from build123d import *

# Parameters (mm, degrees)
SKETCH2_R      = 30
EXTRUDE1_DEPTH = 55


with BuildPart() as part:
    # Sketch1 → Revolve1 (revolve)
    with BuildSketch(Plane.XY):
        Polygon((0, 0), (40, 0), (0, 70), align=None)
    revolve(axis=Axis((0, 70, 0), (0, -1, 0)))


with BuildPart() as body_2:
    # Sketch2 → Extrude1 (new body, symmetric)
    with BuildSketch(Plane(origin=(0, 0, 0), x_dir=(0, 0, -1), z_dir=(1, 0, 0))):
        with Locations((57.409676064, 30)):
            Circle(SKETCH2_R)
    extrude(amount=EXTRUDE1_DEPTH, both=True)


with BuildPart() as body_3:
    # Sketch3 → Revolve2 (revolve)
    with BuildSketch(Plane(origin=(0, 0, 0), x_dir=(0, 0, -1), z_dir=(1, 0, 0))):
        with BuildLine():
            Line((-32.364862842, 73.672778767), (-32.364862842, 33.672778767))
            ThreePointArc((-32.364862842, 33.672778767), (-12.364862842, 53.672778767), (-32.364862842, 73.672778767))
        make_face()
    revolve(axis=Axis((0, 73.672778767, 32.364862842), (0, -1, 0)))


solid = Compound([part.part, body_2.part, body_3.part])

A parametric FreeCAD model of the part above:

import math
import FreeCAD as App
import Part
import Sketcher
from FreeCAD import Vector

doc = App.newDocument("Part")
params = doc.addObject("Spreadsheet::Sheet", "Params")
for row, (alias, value) in enumerate([
    ("sketch1_width", "40 mm"),
    ("sketch1_height", "70 mm"),
    ("revolution_angle", "360 deg"),
    ("sketch2_diameter", "60 mm"),
    ("pad1_length", "110 mm"),
    ("sketch3_radius", "20 mm"),
    ("revolution2_angle", "360 deg"),
], start=1):
    params.set(f"A{row}", alias)
    params.set(f"B{row}", "=" + value)
    params.setAlias(f"B{row}", alias)

body = doc.addObject("PartDesign::Body", "Body")

sketch1 = body.newObject("Sketcher::SketchObject", "Sketch")
sketch1.AttachmentSupport = (doc.getObject("XY_Plane"), [""])
sketch1.MapMode = "FlatFace"
sketch1.addGeometry(Part.LineSegment(Vector(0, 0, 0), Vector(40, 0, 0)), False)
sketch1.addGeometry(Part.LineSegment(Vector(40, 0, 0), Vector(0, 70, 0)), False)
sketch1.addGeometry(Part.LineSegment(Vector(0, 70, 0), Vector(0, 0, 0)), False)
sketch1.addConstraint(Sketcher.Constraint("Coincident", 0, 2, 1, 1))
sketch1.addConstraint(Sketcher.Constraint("Coincident", 1, 2, 2, 1))
sketch1.addConstraint(Sketcher.Constraint("Coincident", 2, 2, 0, 1))
sketch1.addConstraint(Sketcher.Constraint("Horizontal", 0))
sketch1.addConstraint(Sketcher.Constraint("Vertical", 2))
sketch1.addConstraint(Sketcher.Constraint("Coincident", 2, 2, -1, 1))
sketch1.addConstraint(Sketcher.Constraint("DistanceX", 0, 1, 0, 2, 40.0))
sketch1.addConstraint(Sketcher.Constraint("DistanceY", 2, 2, 2, 1, 70.0))
sketch1.setExpression("Constraints[6]", "Params.sketch1_width")
sketch1.setExpression("Constraints[7]", "Params.sketch1_height")
revolution = body.newObject("PartDesign::Revolution", "Revolution")
revolution.Profile = sketch1
revolution.ReferenceAxis = (sketch1, ["V_Axis"])
revolution.setExpression("Angle", "Params.revolution_angle")
body2 = doc.addObject("PartDesign::Body", "Body001")

sketch2 = body2.newObject("Sketcher::SketchObject", "Sketch001")
sketch2.AttachmentSupport = (doc.getObject("YZ_Plane001"), [""])
sketch2.MapMode = "FlatFace"
sketch2.addGeometry(Part.Circle(Vector(30, -57, 0), Vector(0, 0, 1), 30), False)
sketch2.addConstraint(Sketcher.Constraint("Diameter", 0, 60.0))
sketch2.addConstraint(Sketcher.Constraint("DistanceX", -1, 1, 0, 3, 30.0))
sketch2.addConstraint(Sketcher.Constraint("DistanceY", 0, 3, -1, 1, 57.409676))
sketch2.setExpression("Constraints[0]", "Params.sketch2_diameter")
pad1 = body2.newObject("PartDesign::Pad", "Pad")
pad1.Profile = sketch2
pad1.setExpression("Length", "Params.pad1_length")
pad1.Midplane = True
body3 = doc.addObject("PartDesign::Body", "Body002")

sketch3 = body3.newObject("Sketcher::SketchObject", "Sketch002")
sketch3.AttachmentSupport = (doc.getObject("YZ_Plane002"), [""])
sketch3.MapMode = "FlatFace"
sketch3.addGeometry(Part.LineSegment(Vector(74, 32, 0), Vector(34, 32, 0)), False)
sketch3.addGeometry(Part.ArcOfCircle(Part.Circle(Vector(54, 32, 0), Vector(0, 0, 1), 20), math.radians(180), math.radians(360)), False)
sketch3.addGeometry(Part.LineSegment(Vector(74, 32, 0), Vector(34, 32, 0)), True)
sketch3.addConstraint(Sketcher.Constraint("Coincident", 0, 1, 1, 2))
sketch3.addConstraint(Sketcher.Constraint("Coincident", 1, 1, 0, 2))
sketch3.addConstraint(Sketcher.Constraint("Horizontal", 0))
sketch3.addConstraint(Sketcher.Constraint("Horizontal", 2))
sketch3.addConstraint(Sketcher.Constraint("Coincident", 2, 1, 0, 1))
sketch3.addConstraint(Sketcher.Constraint("Horizontal", 1, 3, 0, 1))
sketch3.addConstraint(Sketcher.Constraint("Equal", 0, 2))
sketch3.addConstraint(Sketcher.Constraint("Radius", 1, 20.0))
sketch3.addConstraint(Sketcher.Constraint("DistanceX", -1, 1, 1, 3, 53.672779))
sketch3.addConstraint(Sketcher.Constraint("DistanceY", -1, 1, 1, 3, 32.364863))
sketch3.setExpression("Constraints[7]", "Params.sketch3_radius")
revolution2 = body3.newObject("PartDesign::Revolution", "Revolution001")
revolution2.Profile = sketch3
revolution2.ReferenceAxis = (sketch3, ["Axis0"])
revolution2.setExpression("Angle", "Params.revolution2_angle")

doc.recompute()
